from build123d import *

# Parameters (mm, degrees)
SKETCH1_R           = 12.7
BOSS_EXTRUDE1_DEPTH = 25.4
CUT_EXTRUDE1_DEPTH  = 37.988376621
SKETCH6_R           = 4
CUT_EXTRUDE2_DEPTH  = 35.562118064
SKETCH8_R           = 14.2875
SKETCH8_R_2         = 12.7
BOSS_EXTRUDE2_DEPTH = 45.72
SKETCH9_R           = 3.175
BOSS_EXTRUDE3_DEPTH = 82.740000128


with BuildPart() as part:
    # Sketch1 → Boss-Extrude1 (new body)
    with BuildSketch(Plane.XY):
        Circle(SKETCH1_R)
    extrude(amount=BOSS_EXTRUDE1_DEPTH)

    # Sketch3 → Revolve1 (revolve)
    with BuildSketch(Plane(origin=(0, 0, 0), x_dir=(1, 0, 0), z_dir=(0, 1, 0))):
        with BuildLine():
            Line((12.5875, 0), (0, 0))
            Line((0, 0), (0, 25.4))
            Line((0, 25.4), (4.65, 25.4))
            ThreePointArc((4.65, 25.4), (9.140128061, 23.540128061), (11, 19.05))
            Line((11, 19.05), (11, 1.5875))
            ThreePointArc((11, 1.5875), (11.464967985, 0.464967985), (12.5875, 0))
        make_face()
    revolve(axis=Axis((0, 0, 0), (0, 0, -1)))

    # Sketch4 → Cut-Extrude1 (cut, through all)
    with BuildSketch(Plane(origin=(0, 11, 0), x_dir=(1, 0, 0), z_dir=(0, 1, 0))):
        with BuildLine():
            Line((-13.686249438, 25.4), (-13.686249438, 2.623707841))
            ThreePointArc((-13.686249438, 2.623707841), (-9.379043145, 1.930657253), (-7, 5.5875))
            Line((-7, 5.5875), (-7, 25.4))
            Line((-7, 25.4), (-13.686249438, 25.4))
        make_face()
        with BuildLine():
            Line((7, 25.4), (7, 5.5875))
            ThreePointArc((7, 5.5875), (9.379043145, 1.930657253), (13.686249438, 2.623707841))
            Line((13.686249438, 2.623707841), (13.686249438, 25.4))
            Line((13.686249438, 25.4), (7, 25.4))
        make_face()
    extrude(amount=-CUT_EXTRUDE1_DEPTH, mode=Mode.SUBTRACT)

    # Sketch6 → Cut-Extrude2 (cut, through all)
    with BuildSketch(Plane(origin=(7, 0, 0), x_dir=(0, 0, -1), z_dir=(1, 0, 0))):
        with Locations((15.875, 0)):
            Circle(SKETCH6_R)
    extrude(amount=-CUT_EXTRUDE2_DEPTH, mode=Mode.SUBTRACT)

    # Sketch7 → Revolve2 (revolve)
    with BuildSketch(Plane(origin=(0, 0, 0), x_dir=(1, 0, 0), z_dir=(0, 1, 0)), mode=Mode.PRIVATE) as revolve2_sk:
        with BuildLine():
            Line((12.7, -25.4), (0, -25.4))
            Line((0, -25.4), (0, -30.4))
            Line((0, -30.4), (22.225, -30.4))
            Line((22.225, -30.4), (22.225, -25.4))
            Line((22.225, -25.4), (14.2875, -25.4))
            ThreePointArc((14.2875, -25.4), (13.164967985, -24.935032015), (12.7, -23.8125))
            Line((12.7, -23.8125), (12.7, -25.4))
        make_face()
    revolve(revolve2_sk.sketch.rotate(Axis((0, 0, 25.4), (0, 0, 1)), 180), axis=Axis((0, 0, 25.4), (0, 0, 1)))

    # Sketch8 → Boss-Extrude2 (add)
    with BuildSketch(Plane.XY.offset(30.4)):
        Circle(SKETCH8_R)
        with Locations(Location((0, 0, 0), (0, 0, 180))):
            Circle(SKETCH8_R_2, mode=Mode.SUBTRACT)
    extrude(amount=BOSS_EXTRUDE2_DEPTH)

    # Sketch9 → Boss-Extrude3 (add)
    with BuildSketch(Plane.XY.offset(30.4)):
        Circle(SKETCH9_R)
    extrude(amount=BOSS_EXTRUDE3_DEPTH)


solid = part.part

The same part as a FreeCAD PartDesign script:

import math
import FreeCAD as App
import Part
import Sketcher
from FreeCAD import Vector
Q = App.Units.Quantity

doc = App.newDocument("Part")
body = doc.addObject("PartDesign::Body", "Body")

sketch1 = body.newObject("Sketcher::SketchObject", "Sketch")
sketch1.AttachmentSupport = (doc.getObject("XY_Plane"), [""])
sketch1.MapMode = "FlatFace"
sketch1.addGeometry(Part.Circle(Vector(0, 0, 0), Vector(0, 0, 1), 13), False)
sketch1.addConstraint([
    Sketcher.Constraint("Coincident", 0, 3, -1, 1),
    Sketcher.Constraint("Diameter", 0, Q("1 in")),
])
pad1 = body.newObject("PartDesign::Pad", "Pad")
pad1.Profile = sketch1
pad1.Length = Q("1 in")

sketch2 = body.newObject("Sketcher::SketchObject", "Sketch001")
sketch2.AttachmentSupport = (doc.getObject("XZ_Plane"), [""])
sketch2.MapMode = "FlatFace"
sketch2.addGeometry([
    Part.LineSegment(Vector(0, 0, 0), Vector(12.6, 0, 0)),
    Part.ArcOfCircle(Part.Circle(Vector(12.6, -1.6, 0), Vector(0, 0, 1), 1.6), math.radians(90), math.radians(180)),
    Part.LineSegment(Vector(11, -1.6, 0), Vector(11, -19.1, 0)),
    Part.ArcOfCircle(Part.Circle(Vector(4.7, -19.1, 0), Vector(0, 0, 1), 6.3), math.radians(-90), math.radians(0)),
    Part.LineSegment(Vector(4.7, -25.4, 0), Vector(0, -25.4, 0)),
    Part.LineSegment(Vector(0, -25.4, 0), Vector(0, 0, 0)),
], False)
sketch2.addConstraint([
    Sketcher.Constraint("Tangent", 0, 2, 1, 1),
    Sketcher.Constraint("Tangent", 1, 2, 2, 1),
    Sketcher.Constraint("Tangent", 2, 2, 3, 2),
    Sketcher.Constraint("Tangent", 3, 1, 4, 1),
    Sketcher.Constraint("Coincident", 4, 2, 5, 1),
    Sketcher.Constraint("Coincident", 5, 2, 0, 1),
    Sketcher.Constraint("Horizontal", 0),
    Sketcher.Constraint("Vertical", 2),
    Sketcher.Constraint("Horizontal", 4),
    Sketcher.Constraint("Vertical", 5),
    Sketcher.Constraint("Coincident", 5, 2, -1, 1),
    Sketcher.Constraint("DistanceY", 5, 1, 5, 2, Q("1 in")),
    Sketcher.Constraint("Radius", 3, Q("0.25 in")),
    Sketcher.Constraint("Radius", 1, Q("0.0625 in")),
    Sketcher.Constraint("DistanceX", 0, 1, 0, 2, 12.5875),
])
revolution = body.newObject("PartDesign::Revolution", "Revolution")
revolution.Profile = sketch2
revolution.ReferenceAxis = (sketch2, ["V_Axis"])
revolution.Angle = 360

sketch3 = body.newObject("Sketcher::SketchObject", "Sketch002")
sketch3.AttachmentSupport = (doc.getObject("XZ_Plane"), [""])
sketch3.MapMode = "FlatFace"
sketch3.AttachmentOffset = App.Placement(Vector(0, 0, -11), App.Rotation())
sketch3.addGeometry([
    Part.LineSegment(Vector(-13.7, -25.4, 0), Vector(-13.7, -2.6, 0)),
    Part.ArcOfCircle(Part.Circle(Vector(-11, -5.6, 0), Vector(0, 0, 1), 4), math.radians(0), math.radians(132)),
    Part.LineSegment(Vector(-7, -5.6, 0), Vector(-7, -25.4, 0)),
    Part.LineSegment(Vector(-7, -25.4, 0), Vector(-13.7, -25.4, 0)),
    Part.LineSegment(Vector(7, -25.4, 0), Vector(7, -5.6, 0)),
    Part.ArcOfCircle(Part.Circle(Vector(11, -5.6, 0), Vector(0, 0, 1), 4), math.radians(48), math.radians(180)),
    Part.LineSegment(Vector(13.7, -2.6, 0), Vector(13.7, -25.4, 0)),
    Part.LineSegment(Vector(13.7, -25.4, 0), Vector(7, -25.4, 0)),
], False)
sketch3.addConstraint([
    Sketcher.Constraint("Coincident", 0, 2, 1, 2),
    Sketcher.Constraint("Tangent", 1, 1, 2, 1),
    Sketcher.Constraint("Coincident", 2, 2, 3, 1),
    Sketcher.Constraint("Coincident", 3, 2, 0, 1),
    Sketcher.Constraint("Tangent", 4, 2, 5, 2),
    Sketcher.Constraint("Coincident", 5, 1, 6, 1),
    Sketcher.Constraint("Coincident", 6, 2, 7, 1),
    Sketcher.Constraint("Coincident", 7, 2, 4, 1),
    Sketcher.Constraint("Vertical", 0),
    Sketcher.Constraint("Vertical", 2),
    Sketcher.Constraint("Horizontal", 3),
    Sketcher.Constraint("Vertical", 4),
    Sketcher.Constraint("Vertical", 6),
    Sketcher.Constraint("Horizontal", 7),
    Sketcher.Constraint("Equal", 1, 5),
    Sketcher.Constraint("Symmetric", 1, 3, 5, 3, -2),
    Sketcher.Constraint("Symmetric", 3, 2, 6, 2, -2),
    Sketcher.Constraint("DistanceY", 2, 2, -1, 1, Q("1 in")),
    Sketcher.Constraint("Radius", 1, 4.0),
    Sketcher.Constraint("DistanceY", 2, 2, 2, 1, 19.8125),
    Sketcher.Constraint("DistanceX", 3, 2, 3, 1, 6.686249),
    Sketcher.Constraint("DistanceX", 1, 3, -1, 1, 11.0),
])
pocket1 = body.newObject("PartDesign::Pocket", "Pocket")
pocket1.Profile = sketch3
pocket1.Type = "ThroughAll"
pocket1.Reversed = True

sketch4 = body.newObject("Sketcher::SketchObject", "Sketch003")
sketch4.AttachmentSupport = (doc.getObject("YZ_Plane"), [""])
sketch4.MapMode = "FlatFace"
sketch4.AttachmentOffset = App.Placement(Vector(0, 0, 7), App.Rotation())
sketch4.addGeometry(Part.Circle(Vector(0, -15.9, 0), Vector(0, 0, 1), 4), False)
sketch4.addConstraint([
    Sketcher.Constraint("PointOnObject", 0, 3, -2),
    Sketcher.Constraint("Diameter", 0, 8.0),
    Sketcher.Constraint("DistanceY", 0, 3, -1, 1, Q("0.625 in")),
])
pocket2 = body.newObject("PartDesign::Pocket", "Pocket001")
pocket2.Profile = sketch4
pocket2.Type = "ThroughAll"

sketch5 = body.newObject("Sketcher::SketchObject", "Sketch004")
sketch5.AttachmentSupport = (doc.getObject("XZ_Plane"), [""])
sketch5.MapMode = "FlatFace"
sketch5.addGeometry([
    Part.LineSegment(Vector(12.7, 25.4, 0), Vector(0, 25.4, 0)),
    Part.LineSegment(Vector(0, 25.4, 0), Vector(0, 30.4, 0)),
    Part.LineSegment(Vector(0, 30.4, 0), Vector(22.2, 30.4, 0)),
    Part.LineSegment(Vector(22.2, 30.4, 0), Vector(22.2, 25.4, 0)),
    Part.LineSegment(Vector(22.2, 25.4, 0), Vector(14.3, 25.4, 0)),
    Part.ArcOfCircle(Part.Circle(Vector(14.3, 23.8, 0), Vector(0, 0, 1), 1.6), math.radians(90), math.radians(180)),
    Part.LineSegment(Vector(12.7, 23.8, 0), Vector(12.7, 25.4, 0)),
], False)
sketch5.addConstraint([
    Sketcher.Constraint("Coincident", 0, 2, 1, 1),
    Sketcher.Constraint("Coincident", 1, 2, 2, 1),
    Sketcher.Constraint("Coincident", 2, 2, 3, 1),
    Sketcher.Constraint("Coincident", 3, 2, 4, 1),
    Sketcher.Constraint("Tangent", 4, 2, 5, 1),
    Sketcher.Constraint("Tangent", 5, 2, 6, 1),
    Sketcher.Constraint("Coincident", 6, 2, 0, 1),
    Sketcher.Constraint("Horizontal", 0),
    Sketcher.Constraint("Vertical", 1),
    Sketcher.Constraint("Horizontal", 2),
    Sketcher.Constraint("Vertical", 3),
    Sketcher.Constraint("Horizontal", 4),
    Sketcher.Constraint("Vertical", 6),
    Sketcher.Constraint("PointOnObject", 0, 2, -2),
    Sketcher.Constraint("Horizontal", 0, 2, 3, 2),
    Sketcher.Constraint("DistanceX", 0, 2, 0, 1, Q("0.5 in")),
    Sketcher.Constraint("DistanceY", -1, 1, 0, 2, Q("1 in")),
    Sketcher.Constraint("Radius", 5, Q("0.0625 in")),
    Sketcher.Constraint("DistanceX", 2, 1, 2, 2, Q("0.875 in")),
    Sketcher.Constraint("DistanceY", 1, 1, 1, 2, 5.0),
])
revolution2 = body.newObject("PartDesign::Revolution", "Revolution001")
revolution2.Profile = sketch5
revolution2.ReferenceAxis = (sketch5, ["V_Axis"])
revolution2.Angle = 360

sketch6 = body.newObject("Sketcher::SketchObject", "Sketch005")
sketch6.AttachmentSupport = (doc.getObject("XY_Plane"), [""])
sketch6.MapMode = "FlatFace"
sketch6.AttachmentOffset = App.Placement(Vector(0, 0, 30.4), App.Rotation())
sketch6.addGeometry([
    Part.Circle(Vector(0, 0, 0), Vector(0, 0, 1), 14),
    Part.Circle(Vector(0, 0, 0), Vector(0, 0, 1), 13),
], False)
sketch6.addConstraint([
    Sketcher.Constraint("Coincident", 0, 3, -1, 1),
    Sketcher.Constraint("Coincident", 1, 3, -1, 1),
    Sketcher.Constraint("Diameter", 1, Q("1 in")),
    Sketcher.Constraint("Diameter", 0, Q("1.125 in")),
])
pad2 = body.newObject("PartDesign::Pad", "Pad001")
pad2.Profile = sketch6
pad2.Length = Q("1.8 in")

sketch7 = body.newObject("Sketcher::SketchObject", "Sketch006")
sketch7.AttachmentSupport = (doc.getObject("XY_Plane"), [""])
sketch7.MapMode = "FlatFace"
sketch7.AttachmentOffset = App.Placement(Vector(0, 0, 30.4), App.Rotation())
sketch7.addGeometry(Part.Circle(Vector(0, 0, 0), Vector(0, 0, 1), 3.2), False)
sketch7.addConstraint([
    Sketcher.Constraint("Coincident", 0, 3, -1, 1),
    Sketcher.Constraint("Diameter", 0, Q("0.25 in")),
])
pad3 = body.newObject("PartDesign::Pad", "Pad002")
pad3.Profile = sketch7
pad3.Length = 82.74

doc.recompute()
